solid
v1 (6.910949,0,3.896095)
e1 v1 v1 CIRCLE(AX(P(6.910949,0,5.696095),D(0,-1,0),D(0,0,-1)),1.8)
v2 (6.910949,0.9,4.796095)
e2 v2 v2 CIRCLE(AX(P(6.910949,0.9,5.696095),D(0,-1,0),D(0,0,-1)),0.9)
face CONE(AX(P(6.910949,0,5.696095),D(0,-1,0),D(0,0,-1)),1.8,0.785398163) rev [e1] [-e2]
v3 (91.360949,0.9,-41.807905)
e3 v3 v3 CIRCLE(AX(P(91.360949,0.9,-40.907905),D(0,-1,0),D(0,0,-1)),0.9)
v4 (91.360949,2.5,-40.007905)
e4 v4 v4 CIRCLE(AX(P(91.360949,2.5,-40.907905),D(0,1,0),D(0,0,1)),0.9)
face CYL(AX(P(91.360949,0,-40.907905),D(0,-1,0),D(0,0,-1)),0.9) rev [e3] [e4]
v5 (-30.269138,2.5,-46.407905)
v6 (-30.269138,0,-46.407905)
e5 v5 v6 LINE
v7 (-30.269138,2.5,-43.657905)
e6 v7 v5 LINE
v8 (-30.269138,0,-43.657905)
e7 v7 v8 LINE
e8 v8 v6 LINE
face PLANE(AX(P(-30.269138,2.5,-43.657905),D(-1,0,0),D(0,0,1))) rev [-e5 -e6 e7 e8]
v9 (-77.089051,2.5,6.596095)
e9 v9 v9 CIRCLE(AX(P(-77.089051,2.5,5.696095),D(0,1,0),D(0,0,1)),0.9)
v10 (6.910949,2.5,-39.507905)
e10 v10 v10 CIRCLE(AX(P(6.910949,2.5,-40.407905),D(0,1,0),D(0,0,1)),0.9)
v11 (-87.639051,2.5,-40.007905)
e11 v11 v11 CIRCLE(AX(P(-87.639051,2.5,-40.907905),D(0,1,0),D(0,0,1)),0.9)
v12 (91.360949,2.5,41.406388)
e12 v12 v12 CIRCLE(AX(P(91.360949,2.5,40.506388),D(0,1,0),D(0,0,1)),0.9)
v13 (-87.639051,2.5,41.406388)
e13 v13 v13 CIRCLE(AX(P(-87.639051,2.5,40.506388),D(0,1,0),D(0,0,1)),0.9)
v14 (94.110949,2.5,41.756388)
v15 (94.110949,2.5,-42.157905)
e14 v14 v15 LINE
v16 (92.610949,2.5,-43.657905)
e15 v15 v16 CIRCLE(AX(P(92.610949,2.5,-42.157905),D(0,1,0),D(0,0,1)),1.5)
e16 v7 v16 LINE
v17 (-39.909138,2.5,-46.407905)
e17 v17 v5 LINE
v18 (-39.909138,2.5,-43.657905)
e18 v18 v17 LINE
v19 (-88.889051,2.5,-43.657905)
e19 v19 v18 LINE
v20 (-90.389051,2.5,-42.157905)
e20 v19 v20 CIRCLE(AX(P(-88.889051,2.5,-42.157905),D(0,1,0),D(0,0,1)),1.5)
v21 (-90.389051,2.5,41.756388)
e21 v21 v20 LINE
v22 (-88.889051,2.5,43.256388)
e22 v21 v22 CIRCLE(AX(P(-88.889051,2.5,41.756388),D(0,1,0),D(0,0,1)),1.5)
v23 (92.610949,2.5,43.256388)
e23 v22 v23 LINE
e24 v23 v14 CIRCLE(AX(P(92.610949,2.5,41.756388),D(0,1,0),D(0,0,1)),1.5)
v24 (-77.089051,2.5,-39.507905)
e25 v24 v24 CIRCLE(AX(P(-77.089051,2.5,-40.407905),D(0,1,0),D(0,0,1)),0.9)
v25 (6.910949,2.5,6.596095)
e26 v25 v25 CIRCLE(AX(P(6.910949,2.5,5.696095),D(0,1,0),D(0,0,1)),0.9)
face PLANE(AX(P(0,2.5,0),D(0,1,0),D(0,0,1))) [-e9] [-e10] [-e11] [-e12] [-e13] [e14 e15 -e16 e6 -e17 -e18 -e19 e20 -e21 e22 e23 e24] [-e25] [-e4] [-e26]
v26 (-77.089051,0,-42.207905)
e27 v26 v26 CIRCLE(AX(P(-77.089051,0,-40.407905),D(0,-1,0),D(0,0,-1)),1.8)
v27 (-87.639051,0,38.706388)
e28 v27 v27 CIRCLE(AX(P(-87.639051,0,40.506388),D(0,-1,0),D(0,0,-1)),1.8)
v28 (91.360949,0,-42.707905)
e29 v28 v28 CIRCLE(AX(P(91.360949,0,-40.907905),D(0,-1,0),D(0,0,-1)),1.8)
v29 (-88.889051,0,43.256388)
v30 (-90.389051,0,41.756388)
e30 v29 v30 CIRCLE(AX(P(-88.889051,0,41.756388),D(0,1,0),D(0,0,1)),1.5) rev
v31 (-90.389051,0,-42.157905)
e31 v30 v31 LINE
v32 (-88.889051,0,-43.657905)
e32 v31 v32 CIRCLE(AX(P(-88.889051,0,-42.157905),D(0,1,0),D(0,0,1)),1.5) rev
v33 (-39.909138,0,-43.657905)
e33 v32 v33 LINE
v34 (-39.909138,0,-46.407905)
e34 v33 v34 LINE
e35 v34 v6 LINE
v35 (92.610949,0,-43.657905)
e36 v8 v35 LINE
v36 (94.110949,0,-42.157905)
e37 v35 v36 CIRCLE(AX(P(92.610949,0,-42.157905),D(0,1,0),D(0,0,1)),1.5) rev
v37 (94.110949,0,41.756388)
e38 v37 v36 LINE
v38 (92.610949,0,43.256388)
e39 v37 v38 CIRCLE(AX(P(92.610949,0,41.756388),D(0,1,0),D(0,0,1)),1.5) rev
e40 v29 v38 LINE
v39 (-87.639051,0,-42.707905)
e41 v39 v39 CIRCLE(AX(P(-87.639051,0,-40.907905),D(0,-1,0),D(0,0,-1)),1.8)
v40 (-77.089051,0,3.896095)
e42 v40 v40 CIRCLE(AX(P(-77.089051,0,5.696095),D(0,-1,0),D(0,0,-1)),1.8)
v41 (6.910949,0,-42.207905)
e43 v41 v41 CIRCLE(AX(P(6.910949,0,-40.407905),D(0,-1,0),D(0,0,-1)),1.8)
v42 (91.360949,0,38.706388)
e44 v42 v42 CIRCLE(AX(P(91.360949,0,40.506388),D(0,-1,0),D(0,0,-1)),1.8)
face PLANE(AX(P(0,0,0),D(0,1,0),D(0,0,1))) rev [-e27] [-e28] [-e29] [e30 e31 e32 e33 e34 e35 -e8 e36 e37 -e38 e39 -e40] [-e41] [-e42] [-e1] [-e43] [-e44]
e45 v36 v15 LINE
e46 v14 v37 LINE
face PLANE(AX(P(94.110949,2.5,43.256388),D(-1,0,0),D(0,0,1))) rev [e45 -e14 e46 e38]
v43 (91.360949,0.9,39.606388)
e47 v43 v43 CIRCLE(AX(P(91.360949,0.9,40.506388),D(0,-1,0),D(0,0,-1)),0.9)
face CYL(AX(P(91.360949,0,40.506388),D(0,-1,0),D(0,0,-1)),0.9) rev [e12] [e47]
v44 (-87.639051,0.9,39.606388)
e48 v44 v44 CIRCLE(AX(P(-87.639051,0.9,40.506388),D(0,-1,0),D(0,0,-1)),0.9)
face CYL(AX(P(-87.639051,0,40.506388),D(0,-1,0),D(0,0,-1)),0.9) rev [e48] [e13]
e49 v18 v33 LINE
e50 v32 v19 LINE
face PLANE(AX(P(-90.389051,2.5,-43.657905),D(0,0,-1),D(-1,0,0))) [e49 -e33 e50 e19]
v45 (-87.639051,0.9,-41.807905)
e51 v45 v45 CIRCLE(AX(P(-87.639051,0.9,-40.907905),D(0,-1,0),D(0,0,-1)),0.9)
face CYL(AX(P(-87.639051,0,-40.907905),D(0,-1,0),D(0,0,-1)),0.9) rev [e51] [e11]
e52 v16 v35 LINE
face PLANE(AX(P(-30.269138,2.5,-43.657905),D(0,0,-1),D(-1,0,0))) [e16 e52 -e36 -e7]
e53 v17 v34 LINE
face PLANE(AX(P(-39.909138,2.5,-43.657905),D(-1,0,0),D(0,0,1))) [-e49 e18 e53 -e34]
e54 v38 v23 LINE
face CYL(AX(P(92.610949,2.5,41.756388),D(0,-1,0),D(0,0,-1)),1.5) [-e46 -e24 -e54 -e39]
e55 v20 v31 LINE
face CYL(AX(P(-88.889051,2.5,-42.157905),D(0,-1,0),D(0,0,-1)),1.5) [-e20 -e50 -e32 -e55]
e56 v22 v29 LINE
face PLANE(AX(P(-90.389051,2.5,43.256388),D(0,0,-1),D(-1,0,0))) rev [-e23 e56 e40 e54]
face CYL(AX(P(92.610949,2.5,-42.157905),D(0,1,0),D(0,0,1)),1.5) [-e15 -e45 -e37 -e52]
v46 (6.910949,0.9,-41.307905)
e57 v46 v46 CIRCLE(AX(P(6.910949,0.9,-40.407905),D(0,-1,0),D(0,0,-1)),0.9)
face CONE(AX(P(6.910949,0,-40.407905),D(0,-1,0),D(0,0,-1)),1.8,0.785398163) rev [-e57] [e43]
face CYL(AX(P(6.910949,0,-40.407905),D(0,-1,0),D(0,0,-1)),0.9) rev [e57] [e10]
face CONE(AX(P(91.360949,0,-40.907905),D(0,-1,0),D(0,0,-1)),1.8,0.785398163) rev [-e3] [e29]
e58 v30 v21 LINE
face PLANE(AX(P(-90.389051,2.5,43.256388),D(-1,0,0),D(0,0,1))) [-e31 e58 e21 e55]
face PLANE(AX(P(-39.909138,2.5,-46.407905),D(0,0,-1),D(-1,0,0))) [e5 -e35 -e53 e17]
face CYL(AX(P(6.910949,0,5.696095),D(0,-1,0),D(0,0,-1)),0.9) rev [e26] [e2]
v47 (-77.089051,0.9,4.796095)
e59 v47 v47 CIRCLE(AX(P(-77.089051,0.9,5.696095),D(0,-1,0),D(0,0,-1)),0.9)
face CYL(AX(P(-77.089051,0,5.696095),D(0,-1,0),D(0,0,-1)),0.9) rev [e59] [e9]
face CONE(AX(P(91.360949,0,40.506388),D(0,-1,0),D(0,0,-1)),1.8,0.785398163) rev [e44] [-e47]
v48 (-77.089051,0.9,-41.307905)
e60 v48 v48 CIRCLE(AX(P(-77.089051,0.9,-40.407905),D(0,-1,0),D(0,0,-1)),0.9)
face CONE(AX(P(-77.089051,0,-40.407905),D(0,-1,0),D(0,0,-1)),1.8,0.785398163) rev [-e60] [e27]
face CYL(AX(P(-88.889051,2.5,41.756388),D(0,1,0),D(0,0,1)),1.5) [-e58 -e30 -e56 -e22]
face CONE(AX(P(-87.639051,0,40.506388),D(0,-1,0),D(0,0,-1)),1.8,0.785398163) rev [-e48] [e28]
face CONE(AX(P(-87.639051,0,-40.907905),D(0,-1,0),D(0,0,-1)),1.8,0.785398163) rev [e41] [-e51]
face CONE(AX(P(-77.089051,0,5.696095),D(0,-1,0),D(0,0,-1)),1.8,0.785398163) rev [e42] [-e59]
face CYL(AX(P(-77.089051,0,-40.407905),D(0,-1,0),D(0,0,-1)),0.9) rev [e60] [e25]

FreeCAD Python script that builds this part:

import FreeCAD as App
import Part
import Sketcher


def edges_at(feature, points):
    """Names of the edges that pass closest to the given points."""
    edges = feature.Shape.Edges
    near = lambda p: min(range(len(edges)), key=lambda i: edges[i].distToShape(Part.Vertex(*p))[0])
    return sorted({f"Edge{near(p) + 1}" for p in points})


def add_polygon(sketch, points):
    """Adds a closed chain of lines whose ends are joined by coincident constraints."""
    first, n = sketch.GeometryCount, len(points)
    for a, b in zip(points, points[1:] + points[:1]):
        sketch.addGeometry(Part.LineSegment(App.Vector(*a, 0), App.Vector(*b, 0)), False)
    for i in range(n):
        sketch.addConstraint(Sketcher.Constraint("Coincident", first + i, 2, first + (i + 1) % n, 1))

doc = App.newDocument("Part")
body = doc.addObject("PartDesign::Body", "Body")

sketch1 = doc.addObject("Sketcher::SketchObject", "Sketch")
body.addObject(sketch1)
sketch1.AttachmentSupport = (doc.XZ_Plane, [""])
sketch1.MapMode = "FlatFace"
add_polygon(sketch1, [(-90.4, 43.3), (94.1, 43.3), (94.1, -43.7), (-30.3, -43.7), (-30.3, -46.4), (-39.9, -46.4), (-39.9, -43.7), (-90.4, -43.7)])
sketch1.addConstraint([
    Sketcher.Constraint("Horizontal", 0),
    Sketcher.Constraint("Vertical", 1),
    Sketcher.Constraint("Horizontal", 2),
    Sketcher.Constraint("Vertical", 3),
    Sketcher.Constraint("Horizontal", 4),
    Sketcher.Constraint("Vertical", 5),
    Sketcher.Constraint("Horizontal", 6),
    Sketcher.Constraint("Vertical", 7),
    Sketcher.Constraint("Horizontal", 2, 2, 5, 2),
    Sketcher.Constraint("DistanceX", 0, 1, 0, 2, 184.5),
    Sketcher.Constraint("DistanceX", 4, 2, 4, 1, 9.64),
    Sketcher.Constraint("DistanceY", 3, 2, 3, 1, 2.75),
    Sketcher.Constraint("DistanceX", 2, 2, 2, 1, 124.380087),
    Sketcher.Constraint("DistanceY", 1, 2, 1, 1, 86.914293),
    Sketcher.Constraint("DistanceX", -1, 1, 0, 2, 94.110949),
    Sketcher.Constraint("DistanceY", -1, 1, 0, 2, 43.256388),
])
pad1 = doc.addObject("PartDesign::Pad", "Pad")
body.addObject(pad1)
pad1.Profile = sketch1
pad1.Length = 2.5
pad1.Reversed = True
doc.recompute()

fillet = doc.addObject("PartDesign::Fillet", "Fillet")
body.addObject(fillet)
fillet.Base = (pad1, edges_at(pad1, [
    (-90.389, 1.25, 43.256),
    (-90.389, 1.25, -43.658),
    (94.111, 1.25, -43.658),
    (94.111, 1.25, 43.256),
]))
fillet.Radius = 1.5

sketch2 = doc.addObject("Sketcher::SketchObject", "Sketch001")
body.addObject(sketch2)
sketch2.AttachmentSupport = (doc.XZ_Plane, [""])
sketch2.MapMode = "FlatFace"
sketch2.addGeometry([
    Part.Circle(App.Vector(-87.6, 40.5, 0), App.Vector(0, 0, 1), 0.9),
    Part.Circle(App.Vector(91.4, 40.5, 0), App.Vector(0, 0, 1), 0.9),
    Part.Circle(App.Vector(91.4, -40.9, 0), App.Vector(0, 0, 1), 0.9),
    Part.Circle(App.Vector(-87.6, -40.9, 0), App.Vector(0, 0, 1), 0.9),
    Part.Circle(App.Vector(-77.1, 5.7, 0), App.Vector(0, 0, 1), 0.9),
    Part.Circle(App.Vector(6.9, 5.7, 0), App.Vector(0, 0, 1), 0.9),
    Part.Circle(App.Vector(6.9, -40.4, 0), App.Vector(0, 0, 1), 0.9),
    Part.Circle(App.Vector(-77.1, -40.4, 0), App.Vector(0, 0, 1), 0.9),
], False)
sketch2.addConstraint([
    Sketcher.Constraint("Equal", 0, 1),
    Sketcher.Constraint("Equal", 1, 2),
    Sketcher.Constraint("Equal", 2, 3),
    Sketcher.Constraint("Equal", 3, 4),
    Sketcher.Constraint("Equal", 4, 5),
    Sketcher.Constraint("Equal", 5, 6),
    Sketcher.Constraint("Equal", 6, 7),
    Sketcher.Constraint("Horizontal", 0, 3, 1, 3),
    Sketcher.Constraint("Horizontal", 2, 3, 3, 3),
    Sketcher.Constraint("Horizontal", 4, 3, 5, 3),
    Sketcher.Constraint("Horizontal", 6, 3, 7, 3),
    Sketcher.Constraint("Vertical", 1, 3, 2, 3),
    Sketcher.Constraint("Vertical", 0, 3, 3, 3),
    Sketcher.Constraint("Vertical", 5, 3, 6, 3),
    Sketcher.Constraint("Vertical", 4, 3, 7, 3),
    Sketcher.Constraint("Diameter", 0, 1.8),
    Sketcher.Constraint("DistanceX", 0, 3, 1, 3, 179.0),
    Sketcher.Constraint("DistanceX", 4, 3, 5, 3, 84.0),
    Sketcher.Constraint("DistanceY", 2, 3, 6, 3, 0.5),
    Sketcher.Constraint("DistanceX", 0, 3, 4, 3, 10.55),
    Sketcher.Constraint("DistanceY", 3, 3, 4, 3, 46.604),
    Sketcher.Constraint("DistanceX", 0, 3, -1, 1, 87.639051),
    Sketcher.Constraint("DistanceY", -1, 1, 0, 3, 40.506388),
    Sketcher.Constraint("DistanceY", 2, 3, -1, 1, 40.907905),
])
doc.recompute()
hole = doc.addObject("PartDesign::Hole", "Hole")
body.addObject(hole)
hole.Profile = sketch2
hole.ThreadType = "None"
hole.Diameter = 1.8
hole.DepthType = "ThroughAll"
hole.HoleCutType = "Countersink"
hole.HoleCutDiameter = 3.6
hole.HoleCutCountersinkAngle = 90

doc.recompute()
